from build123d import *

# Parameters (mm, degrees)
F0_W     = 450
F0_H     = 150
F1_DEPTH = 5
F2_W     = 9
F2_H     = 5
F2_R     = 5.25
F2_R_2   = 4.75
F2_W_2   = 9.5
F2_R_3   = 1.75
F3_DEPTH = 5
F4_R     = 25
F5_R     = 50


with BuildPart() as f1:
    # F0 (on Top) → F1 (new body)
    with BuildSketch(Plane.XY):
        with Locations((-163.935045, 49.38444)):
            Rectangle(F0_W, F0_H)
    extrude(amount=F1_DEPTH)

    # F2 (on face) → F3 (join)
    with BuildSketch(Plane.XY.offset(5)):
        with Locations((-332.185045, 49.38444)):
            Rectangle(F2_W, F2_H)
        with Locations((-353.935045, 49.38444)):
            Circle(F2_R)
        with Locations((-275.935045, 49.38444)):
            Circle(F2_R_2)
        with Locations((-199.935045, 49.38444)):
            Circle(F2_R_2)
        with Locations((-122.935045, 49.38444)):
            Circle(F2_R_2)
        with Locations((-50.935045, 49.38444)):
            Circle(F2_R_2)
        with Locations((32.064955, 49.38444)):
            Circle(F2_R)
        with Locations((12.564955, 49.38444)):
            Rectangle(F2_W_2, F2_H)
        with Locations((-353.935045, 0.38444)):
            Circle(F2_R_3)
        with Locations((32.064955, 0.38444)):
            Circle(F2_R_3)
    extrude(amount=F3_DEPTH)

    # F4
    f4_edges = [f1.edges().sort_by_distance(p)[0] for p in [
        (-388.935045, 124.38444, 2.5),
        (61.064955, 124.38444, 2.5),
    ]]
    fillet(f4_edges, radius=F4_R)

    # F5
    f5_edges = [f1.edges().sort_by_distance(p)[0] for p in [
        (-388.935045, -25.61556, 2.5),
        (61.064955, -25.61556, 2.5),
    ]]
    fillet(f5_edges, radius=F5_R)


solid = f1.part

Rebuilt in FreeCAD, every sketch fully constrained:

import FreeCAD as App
import Part
import Sketcher

V = App.Vector


def edges_at(feature, points):
    """Names of the edges that pass closest to the given points."""
    edges = feature.Shape.Edges
    near = lambda p: min(range(len(edges)), key=lambda i: edges[i].distToShape(Part.Vertex(*p))[0])
    return sorted({f"Edge{near(p) + 1}" for p in points})


def add_polygon(sketch, points):
    """Adds a closed chain of lines whose ends are joined by coincident constraints."""
    first, n = sketch.GeometryCount, len(points)
    for a, b in zip(points, points[1:] + points[:1]):
        sketch.addGeometry(Part.LineSegment(App.Vector(*a, 0), App.Vector(*b, 0)), False)
    for i in range(n):
        sketch.addConstraint(Sketcher.Constraint("Coincident", first + i, 2, first + (i + 1) % n, 1))

doc = App.newDocument("Part")
body = doc.addObject("PartDesign::Body", "Body")

sketch1 = body.newObject("Sketcher::SketchObject", "Sketch")
sketch1.AttachmentSupport = (doc.getObject("XY_Plane"), [""])
sketch1.MapMode = "FlatFace"
add_polygon(sketch1, [(-388.935045, 124.38444), (-388.935045, -25.61556), (61.064955, -25.61556), (61.064955, 124.38444)])
sketch1.addConstraint([
    Sketcher.Constraint("Vertical", 0),
    Sketcher.Constraint("Horizontal", 1),
    Sketcher.Constraint("Vertical", 2),
    Sketcher.Constraint("Horizontal", 3),
    Sketcher.Constraint("DistanceX", 1, 1, 1, 2, 450.0),
    Sketcher.Constraint("DistanceY", 0, 2, 0, 1, 150.0),
    Sketcher.Constraint("DistanceY", 0, 2, -1, 1, 25.61556),
    Sketcher.Constraint("DistanceX", 0, 2, -1, 1, 388.935045),
])
pad1 = body.newObject("PartDesign::Pad", "Pad")
pad1.Profile = sketch1
pad1.Length = 5

sketch2 = body.newObject("Sketcher::SketchObject", "Sketch001")
sketch2.AttachmentSupport = (doc.getObject("XY_Plane"), [""])
sketch2.MapMode = "FlatFace"
sketch2.AttachmentOffset = App.Placement(V(0, 0, 5), App.Rotation())
add_polygon(sketch2, [(-336.685045, 51.88444), (-336.685045, 46.88444), (-327.685045, 46.88444), (-327.685045, 51.88444)])
sketch2.addGeometry(Part.Circle(V(-353.935045, 49.38444, 0), V(0, 0, 1), 5.25), False)
sketch2.addGeometry(Part.Circle(V(-275.935045, 49.38444, 0), V(0, 0, 1), 4.75), False)
sketch2.addGeometry(Part.Circle(V(-199.935045, 49.38444, 0), V(0, 0, 1), 4.75), False)
sketch2.addGeometry(Part.Circle(V(-122.935045, 49.38444, 0), V(0, 0, 1), 4.75), False)
sketch2.addGeometry(Part.Circle(V(-50.935045, 49.38444, 0), V(0, 0, 1), 4.75), False)
sketch2.addGeometry(Part.Circle(V(32.064955, 49.38444, 0), V(0, 0, 1), 5.25), False)
add_polygon(sketch2, [(7.814955, 51.88444), (7.814955, 46.88444), (17.314955, 46.88444), (17.314955, 51.88444)])
sketch2.addGeometry(Part.Circle(V(-353.935045, 0.38444, 0), V(0, 0, 1), 1.75), False)
sketch2.addGeometry(Part.Circle(V(32.064955, 0.38444, 0), V(0, 0, 1), 1.75), False)
sketch2.addConstraint([
    Sketcher.Constraint("Vertical", 0),
    Sketcher.Constraint("Horizontal", 1),
    Sketcher.Constraint("Vertical", 2),
    Sketcher.Constraint("Horizontal", 3),
    Sketcher.Constraint("Vertical", 10),
    Sketcher.Constraint("Horizontal", 11),
    Sketcher.Constraint("Vertical", 12),
    Sketcher.Constraint("Horizontal", 13),
    Sketcher.Constraint("Equal", 5, 6),
    Sketcher.Constraint("Equal", 6, 7),
    Sketcher.Constraint("Equal", 7, 8),
    Sketcher.Constraint("Equal", 4, 9),
    Sketcher.Constraint("Equal", 14, 15),
    Sketcher.Constraint("Horizontal", 4, 3, 5, 3),
    Sketcher.Constraint("Horizontal", 5, 3, 6, 3),
    Sketcher.Constraint("Horizontal", 6, 3, 7, 3),
    Sketcher.Constraint("Horizontal", 7, 3, 8, 3),
    Sketcher.Constraint("Horizontal", 8, 3, 9, 3),
    Sketcher.Constraint("Horizontal", 14, 3, 15, 3),
    Sketcher.Constraint("Horizontal", 1, 2, 10, 2),
    Sketcher.Constraint("Horizontal", 3, 2, 12, 2),
    Sketcher.Constraint("Vertical", 4, 3, 14, 3),
    Sketcher.Constraint("Vertical", 9, 3, 15, 3),
    Sketcher.Constraint("Diameter", 4, 10.5),
    Sketcher.Constraint("Diameter", 5, 9.5),
    Sketcher.Constraint("Diameter", 14, 3.5),
    Sketcher.Constraint("DistanceX", 1, 1, 1, 2, 9.0),
    Sketcher.Constraint("DistanceY", 0, 2, 0, 1, 5.0),
    Sketcher.Constraint("DistanceX", 11, 1, 11, 2, 9.5),
    Sketcher.Constraint("DistanceX", 4, 3, 5, 3, 78.0),
    Sketcher.Constraint("DistanceX", 5, 3, 6, 3, 76.0),
    Sketcher.Constraint("DistanceX", 6, 3, 7, 3, 77.0),
    Sketcher.Constraint("DistanceX", 7, 3, 8, 3, 72.0),
    Sketcher.Constraint("DistanceX", 8, 3, 9, 3, 83.0),
    Sketcher.Constraint("DistanceY", 14, 3, 4, 3, 49.0),
    Sketcher.Constraint("DistanceY", 0, 2, 4, 3, 2.5),
    Sketcher.Constraint("DistanceX", 4, 3, 0, 2, 17.25),
    Sketcher.Constraint("DistanceX", 10, 2, 9, 3, 24.25),
    Sketcher.Constraint("DistanceY", -1, 1, 4, 3, 49.38444),
    Sketcher.Constraint("DistanceX", 4, 3, -1, 1, 353.935045),
])
pad2 = body.newObject("PartDesign::Pad", "Pad001")
pad2.Profile = sketch2
pad2.Length = 5
doc.recompute()

fillet = body.newObject("PartDesign::Fillet", "Fillet")
fillet.Base = (pad2, edges_at(pad2, [(-388.935, 124.384, 2.5), (61.065, 124.384, 2.5)]))
fillet.Radius = 25
doc.recompute()

fillet2 = body.newObject("PartDesign::Fillet", "Fillet001")
fillet2.Base = (fillet, edges_at(fillet, [(-388.935, -25.616, 2.5), (61.065, -25.616, 2.5)]))
fillet2.Radius = 50

doc.recompute()
